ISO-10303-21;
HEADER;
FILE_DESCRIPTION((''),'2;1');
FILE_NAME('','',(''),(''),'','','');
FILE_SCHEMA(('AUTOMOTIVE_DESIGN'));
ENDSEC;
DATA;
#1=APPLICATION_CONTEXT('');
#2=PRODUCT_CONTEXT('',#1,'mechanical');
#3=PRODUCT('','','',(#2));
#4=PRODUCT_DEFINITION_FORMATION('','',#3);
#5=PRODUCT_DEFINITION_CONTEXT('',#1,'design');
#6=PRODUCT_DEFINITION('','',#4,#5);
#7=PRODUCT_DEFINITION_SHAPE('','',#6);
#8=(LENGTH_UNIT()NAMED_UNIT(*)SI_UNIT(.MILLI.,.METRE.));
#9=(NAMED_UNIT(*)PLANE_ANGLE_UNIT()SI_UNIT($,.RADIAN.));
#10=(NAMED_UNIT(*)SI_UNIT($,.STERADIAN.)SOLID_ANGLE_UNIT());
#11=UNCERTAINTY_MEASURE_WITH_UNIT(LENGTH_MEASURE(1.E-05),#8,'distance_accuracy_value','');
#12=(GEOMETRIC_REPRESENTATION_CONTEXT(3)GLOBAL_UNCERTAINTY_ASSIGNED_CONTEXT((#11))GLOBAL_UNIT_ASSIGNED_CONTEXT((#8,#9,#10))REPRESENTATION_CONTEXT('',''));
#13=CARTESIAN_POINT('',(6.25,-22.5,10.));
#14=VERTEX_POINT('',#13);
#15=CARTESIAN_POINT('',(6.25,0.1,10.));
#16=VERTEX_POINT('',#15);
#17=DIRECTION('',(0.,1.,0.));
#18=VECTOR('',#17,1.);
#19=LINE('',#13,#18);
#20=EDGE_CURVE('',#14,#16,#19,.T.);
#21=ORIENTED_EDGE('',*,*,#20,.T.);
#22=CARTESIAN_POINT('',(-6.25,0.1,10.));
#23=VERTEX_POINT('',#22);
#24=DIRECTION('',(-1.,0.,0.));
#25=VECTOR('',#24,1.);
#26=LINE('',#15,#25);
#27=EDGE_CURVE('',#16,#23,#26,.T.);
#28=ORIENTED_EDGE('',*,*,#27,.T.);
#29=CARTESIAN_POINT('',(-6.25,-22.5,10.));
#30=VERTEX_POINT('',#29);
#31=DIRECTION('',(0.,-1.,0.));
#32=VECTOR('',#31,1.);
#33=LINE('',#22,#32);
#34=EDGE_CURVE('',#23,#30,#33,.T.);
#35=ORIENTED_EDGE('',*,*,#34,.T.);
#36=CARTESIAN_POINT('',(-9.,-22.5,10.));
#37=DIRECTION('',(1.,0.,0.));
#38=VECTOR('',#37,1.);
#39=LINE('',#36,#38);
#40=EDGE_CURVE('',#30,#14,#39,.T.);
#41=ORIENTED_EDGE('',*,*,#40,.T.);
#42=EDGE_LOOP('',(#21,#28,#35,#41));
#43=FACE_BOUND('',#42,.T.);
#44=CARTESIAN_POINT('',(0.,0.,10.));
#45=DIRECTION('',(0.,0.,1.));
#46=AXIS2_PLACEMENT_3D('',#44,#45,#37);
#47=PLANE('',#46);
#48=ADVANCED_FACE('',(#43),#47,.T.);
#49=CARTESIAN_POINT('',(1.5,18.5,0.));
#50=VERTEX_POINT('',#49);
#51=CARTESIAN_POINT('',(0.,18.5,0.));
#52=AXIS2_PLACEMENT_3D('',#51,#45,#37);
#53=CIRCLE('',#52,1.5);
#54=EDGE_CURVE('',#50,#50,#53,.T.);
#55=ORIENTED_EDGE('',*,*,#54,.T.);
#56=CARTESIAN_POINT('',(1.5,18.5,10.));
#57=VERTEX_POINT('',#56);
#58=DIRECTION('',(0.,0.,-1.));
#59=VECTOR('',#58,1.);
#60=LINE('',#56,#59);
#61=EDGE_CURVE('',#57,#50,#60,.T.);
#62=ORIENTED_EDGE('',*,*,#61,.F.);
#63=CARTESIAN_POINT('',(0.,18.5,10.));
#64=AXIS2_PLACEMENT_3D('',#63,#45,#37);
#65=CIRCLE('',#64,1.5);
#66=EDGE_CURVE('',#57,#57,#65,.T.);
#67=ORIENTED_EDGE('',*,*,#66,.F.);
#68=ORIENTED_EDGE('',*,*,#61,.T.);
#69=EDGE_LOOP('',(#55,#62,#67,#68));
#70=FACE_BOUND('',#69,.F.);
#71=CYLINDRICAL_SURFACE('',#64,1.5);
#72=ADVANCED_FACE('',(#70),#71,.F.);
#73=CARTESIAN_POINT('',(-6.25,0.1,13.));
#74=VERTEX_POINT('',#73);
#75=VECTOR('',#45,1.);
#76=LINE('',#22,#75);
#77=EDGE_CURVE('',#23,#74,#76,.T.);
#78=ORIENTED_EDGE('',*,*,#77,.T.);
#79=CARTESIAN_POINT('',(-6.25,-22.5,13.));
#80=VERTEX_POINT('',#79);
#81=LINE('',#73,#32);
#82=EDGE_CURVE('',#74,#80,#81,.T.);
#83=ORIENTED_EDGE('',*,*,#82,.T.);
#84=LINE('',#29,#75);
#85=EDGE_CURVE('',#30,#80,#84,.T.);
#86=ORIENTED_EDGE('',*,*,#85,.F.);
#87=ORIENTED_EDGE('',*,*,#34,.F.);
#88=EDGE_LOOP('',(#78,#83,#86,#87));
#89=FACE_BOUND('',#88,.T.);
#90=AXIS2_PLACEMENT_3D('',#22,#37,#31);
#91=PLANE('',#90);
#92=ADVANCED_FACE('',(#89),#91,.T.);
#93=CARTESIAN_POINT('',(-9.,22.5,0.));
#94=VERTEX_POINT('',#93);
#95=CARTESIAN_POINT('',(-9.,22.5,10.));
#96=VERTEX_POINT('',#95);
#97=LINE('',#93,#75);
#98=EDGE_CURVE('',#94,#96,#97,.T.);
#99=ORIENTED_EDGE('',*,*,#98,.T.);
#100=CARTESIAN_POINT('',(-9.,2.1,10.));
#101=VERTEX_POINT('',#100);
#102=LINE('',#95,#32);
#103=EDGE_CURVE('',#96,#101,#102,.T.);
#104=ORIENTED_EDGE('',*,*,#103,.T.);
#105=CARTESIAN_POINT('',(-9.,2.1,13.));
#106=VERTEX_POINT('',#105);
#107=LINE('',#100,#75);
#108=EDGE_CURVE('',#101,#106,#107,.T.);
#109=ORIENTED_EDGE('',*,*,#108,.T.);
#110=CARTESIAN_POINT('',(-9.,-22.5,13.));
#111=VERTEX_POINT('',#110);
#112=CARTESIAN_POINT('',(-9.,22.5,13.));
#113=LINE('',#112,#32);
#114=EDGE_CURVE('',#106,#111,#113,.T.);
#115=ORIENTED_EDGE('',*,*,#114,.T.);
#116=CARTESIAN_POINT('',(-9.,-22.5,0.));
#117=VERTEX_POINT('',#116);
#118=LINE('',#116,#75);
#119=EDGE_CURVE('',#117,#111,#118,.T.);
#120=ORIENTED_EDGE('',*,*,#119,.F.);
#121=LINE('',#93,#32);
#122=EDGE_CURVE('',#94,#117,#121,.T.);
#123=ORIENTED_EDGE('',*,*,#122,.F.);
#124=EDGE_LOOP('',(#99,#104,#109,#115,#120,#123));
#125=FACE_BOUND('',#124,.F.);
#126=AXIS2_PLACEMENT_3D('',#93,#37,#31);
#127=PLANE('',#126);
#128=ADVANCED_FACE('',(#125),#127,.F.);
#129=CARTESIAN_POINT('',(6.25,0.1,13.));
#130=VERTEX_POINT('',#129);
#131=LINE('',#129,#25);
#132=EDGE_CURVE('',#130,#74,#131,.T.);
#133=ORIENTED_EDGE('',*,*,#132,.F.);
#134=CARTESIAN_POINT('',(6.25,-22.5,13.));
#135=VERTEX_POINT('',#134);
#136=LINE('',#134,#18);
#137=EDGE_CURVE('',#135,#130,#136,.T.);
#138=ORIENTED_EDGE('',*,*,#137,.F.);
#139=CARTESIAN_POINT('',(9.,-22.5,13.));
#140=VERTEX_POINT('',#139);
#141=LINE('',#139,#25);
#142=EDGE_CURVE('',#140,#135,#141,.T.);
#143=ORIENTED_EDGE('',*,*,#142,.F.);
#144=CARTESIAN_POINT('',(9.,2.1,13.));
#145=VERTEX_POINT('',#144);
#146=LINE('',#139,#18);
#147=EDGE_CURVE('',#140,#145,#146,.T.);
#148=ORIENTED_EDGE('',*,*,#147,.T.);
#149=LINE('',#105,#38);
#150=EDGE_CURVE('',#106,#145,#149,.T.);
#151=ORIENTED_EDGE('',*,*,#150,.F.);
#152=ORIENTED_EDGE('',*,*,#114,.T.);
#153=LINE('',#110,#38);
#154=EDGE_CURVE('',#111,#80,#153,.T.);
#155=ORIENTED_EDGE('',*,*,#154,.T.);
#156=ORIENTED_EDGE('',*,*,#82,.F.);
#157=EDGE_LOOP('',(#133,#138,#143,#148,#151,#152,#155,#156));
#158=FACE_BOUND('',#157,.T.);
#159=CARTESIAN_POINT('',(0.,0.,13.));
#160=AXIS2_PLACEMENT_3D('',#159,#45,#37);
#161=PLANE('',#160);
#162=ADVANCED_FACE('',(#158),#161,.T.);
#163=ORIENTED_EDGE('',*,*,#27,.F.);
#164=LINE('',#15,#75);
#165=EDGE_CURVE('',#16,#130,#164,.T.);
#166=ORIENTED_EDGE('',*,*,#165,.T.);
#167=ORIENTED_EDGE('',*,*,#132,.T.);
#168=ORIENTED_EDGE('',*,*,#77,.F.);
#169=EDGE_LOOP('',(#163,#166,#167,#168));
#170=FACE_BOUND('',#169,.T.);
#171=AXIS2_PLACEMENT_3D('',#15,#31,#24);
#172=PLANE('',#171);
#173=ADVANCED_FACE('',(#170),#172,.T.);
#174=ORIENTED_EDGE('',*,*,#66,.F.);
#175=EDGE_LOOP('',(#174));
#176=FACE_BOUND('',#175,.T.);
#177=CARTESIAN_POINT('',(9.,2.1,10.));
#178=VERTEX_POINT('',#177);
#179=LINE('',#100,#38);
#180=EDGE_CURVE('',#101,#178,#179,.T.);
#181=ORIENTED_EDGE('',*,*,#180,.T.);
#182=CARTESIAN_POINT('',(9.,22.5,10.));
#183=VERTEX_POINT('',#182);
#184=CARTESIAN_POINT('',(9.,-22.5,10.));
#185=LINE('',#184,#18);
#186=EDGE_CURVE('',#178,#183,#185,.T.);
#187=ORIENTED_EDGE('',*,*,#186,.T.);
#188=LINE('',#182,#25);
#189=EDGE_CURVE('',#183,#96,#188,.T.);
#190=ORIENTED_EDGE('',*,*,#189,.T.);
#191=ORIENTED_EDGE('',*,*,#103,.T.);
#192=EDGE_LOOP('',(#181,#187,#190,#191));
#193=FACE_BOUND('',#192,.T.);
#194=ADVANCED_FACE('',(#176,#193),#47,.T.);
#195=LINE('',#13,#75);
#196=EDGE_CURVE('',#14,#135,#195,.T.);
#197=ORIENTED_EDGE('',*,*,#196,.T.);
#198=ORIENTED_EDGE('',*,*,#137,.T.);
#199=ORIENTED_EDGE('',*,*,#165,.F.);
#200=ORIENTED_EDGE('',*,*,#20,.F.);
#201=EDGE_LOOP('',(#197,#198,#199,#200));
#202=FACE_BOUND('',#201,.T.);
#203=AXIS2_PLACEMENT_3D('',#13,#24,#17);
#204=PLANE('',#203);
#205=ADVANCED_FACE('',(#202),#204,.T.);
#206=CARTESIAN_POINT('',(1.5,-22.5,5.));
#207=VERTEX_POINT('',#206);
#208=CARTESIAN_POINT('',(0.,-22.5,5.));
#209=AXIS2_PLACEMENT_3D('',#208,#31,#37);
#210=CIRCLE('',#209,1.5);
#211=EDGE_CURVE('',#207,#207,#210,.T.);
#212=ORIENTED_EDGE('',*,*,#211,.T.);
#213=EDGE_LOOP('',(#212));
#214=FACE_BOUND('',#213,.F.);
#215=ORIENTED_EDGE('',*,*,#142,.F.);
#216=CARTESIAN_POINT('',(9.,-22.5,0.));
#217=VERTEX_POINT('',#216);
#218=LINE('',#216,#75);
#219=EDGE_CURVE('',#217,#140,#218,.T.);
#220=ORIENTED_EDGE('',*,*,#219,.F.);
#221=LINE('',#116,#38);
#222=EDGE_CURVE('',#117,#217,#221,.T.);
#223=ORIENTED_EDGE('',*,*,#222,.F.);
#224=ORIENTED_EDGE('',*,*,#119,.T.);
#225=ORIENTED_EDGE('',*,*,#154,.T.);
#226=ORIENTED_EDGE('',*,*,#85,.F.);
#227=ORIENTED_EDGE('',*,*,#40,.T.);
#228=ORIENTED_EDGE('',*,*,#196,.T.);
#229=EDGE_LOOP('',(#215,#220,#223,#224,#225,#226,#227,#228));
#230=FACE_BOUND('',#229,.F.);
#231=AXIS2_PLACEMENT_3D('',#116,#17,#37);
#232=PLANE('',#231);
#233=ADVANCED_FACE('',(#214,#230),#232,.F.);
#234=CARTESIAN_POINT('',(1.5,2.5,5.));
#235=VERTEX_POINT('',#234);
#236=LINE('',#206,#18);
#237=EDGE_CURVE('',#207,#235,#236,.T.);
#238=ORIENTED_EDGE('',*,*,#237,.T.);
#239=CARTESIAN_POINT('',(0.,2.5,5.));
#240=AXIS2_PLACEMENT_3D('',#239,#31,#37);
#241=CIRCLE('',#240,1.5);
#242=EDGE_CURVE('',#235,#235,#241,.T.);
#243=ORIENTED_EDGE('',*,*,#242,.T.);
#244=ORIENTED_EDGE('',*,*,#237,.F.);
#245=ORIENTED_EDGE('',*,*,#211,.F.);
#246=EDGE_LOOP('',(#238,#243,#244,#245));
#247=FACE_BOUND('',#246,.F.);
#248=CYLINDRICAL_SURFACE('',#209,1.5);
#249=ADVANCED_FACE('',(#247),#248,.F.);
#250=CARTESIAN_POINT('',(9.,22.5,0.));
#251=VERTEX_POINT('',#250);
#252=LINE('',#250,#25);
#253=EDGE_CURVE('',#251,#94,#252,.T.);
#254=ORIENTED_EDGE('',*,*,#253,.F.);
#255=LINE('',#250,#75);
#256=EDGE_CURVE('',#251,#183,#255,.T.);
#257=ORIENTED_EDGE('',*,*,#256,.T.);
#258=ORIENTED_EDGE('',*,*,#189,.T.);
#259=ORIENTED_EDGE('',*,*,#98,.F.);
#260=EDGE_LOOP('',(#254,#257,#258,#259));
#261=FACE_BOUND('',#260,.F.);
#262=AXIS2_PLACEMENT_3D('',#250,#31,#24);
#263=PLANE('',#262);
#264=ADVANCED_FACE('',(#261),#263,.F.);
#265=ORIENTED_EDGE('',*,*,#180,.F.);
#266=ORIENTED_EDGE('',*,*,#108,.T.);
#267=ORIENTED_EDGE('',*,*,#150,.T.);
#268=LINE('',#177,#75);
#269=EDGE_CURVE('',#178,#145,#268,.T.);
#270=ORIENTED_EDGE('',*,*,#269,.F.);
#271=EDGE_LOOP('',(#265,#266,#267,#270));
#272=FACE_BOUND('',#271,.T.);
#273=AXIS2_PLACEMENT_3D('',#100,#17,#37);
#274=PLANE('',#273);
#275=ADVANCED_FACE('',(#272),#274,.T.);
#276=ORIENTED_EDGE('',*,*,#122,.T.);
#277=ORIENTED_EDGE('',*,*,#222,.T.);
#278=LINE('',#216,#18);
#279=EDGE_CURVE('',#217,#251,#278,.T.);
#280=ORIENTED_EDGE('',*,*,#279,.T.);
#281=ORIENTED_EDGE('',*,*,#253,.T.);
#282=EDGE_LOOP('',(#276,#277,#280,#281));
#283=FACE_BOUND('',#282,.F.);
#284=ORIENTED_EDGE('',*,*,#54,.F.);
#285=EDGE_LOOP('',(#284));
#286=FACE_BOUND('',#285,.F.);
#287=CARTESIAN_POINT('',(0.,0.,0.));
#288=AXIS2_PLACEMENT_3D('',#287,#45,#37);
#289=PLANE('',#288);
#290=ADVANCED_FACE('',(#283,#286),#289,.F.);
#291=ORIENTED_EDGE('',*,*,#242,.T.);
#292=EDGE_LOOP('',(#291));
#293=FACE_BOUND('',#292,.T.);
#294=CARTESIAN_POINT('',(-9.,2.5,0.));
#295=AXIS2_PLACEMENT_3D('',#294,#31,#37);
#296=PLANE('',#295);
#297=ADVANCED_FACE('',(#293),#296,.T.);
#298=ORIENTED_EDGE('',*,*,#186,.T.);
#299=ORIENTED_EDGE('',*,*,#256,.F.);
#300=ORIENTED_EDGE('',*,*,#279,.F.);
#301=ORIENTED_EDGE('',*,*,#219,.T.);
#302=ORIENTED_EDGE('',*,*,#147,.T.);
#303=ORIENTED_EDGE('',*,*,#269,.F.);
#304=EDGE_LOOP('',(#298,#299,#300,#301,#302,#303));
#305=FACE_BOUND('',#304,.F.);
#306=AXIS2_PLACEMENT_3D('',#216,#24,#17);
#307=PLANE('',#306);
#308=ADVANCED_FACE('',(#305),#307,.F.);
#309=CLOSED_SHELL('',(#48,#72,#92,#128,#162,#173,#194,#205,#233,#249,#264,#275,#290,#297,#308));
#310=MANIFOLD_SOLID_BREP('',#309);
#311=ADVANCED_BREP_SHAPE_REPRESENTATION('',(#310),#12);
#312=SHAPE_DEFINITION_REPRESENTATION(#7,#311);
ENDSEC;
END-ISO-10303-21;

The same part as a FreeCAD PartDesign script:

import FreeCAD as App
import Part
import Sketcher

V = App.Vector


def add_polygon(sketch, points):
    """Adds a closed chain of lines whose ends are joined by coincident constraints."""
    first, n = sketch.GeometryCount, len(points)
    for a, b in zip(points, points[1:] + points[:1]):
        sketch.addGeometry(Part.LineSegment(App.Vector(*a, 0), App.Vector(*b, 0)), False)
    for i in range(n):
        sketch.addConstraint(Sketcher.Constraint("Coincident", first + i, 2, first + (i + 1) % n, 1))

doc = App.newDocument("Part")
body = doc.addObject("PartDesign::Body", "Body")

# Sketch on XY plane
sketch1 = doc.addObject("Sketcher::SketchObject", "Sketch")
body.addObject(sketch1)
sketch1.AttachmentSupport = (doc.XY_Plane, [""])
sketch1.MapMode = "FlatFace"
add_polygon(sketch1, [(-9, 22.5), (-9, -22.5), (9, -22.5), (9, 22.5)])  # lines 0-3
sketch1.addConstraint([
    Sketcher.Constraint("Vertical", 0),
    Sketcher.Constraint("Horizontal", 1),
    Sketcher.Constraint("Vertical", 2),
    Sketcher.Constraint("Horizontal", 3),
    Sketcher.Constraint("Symmetric", 0, 2, 2, 2, -1, 1),
    Sketcher.Constraint("DistanceX", 1, 1, 1, 2, 18.0),
    Sketcher.Constraint("DistanceY", 0, 2, 0, 1, 45.0),
])
pad1 = doc.addObject("PartDesign::Pad", "Pad")
body.addObject(pad1)
pad1.Profile = sketch1
pad1.Length = 10

# Sketch on XY plane
sketch2 = doc.addObject("Sketcher::SketchObject", "Sketch001")
body.addObject(sketch2)
sketch2.AttachmentSupport = (doc.XY_Plane, [""])
sketch2.MapMode = "FlatFace"
sketch2.AttachmentOffset = App.Placement(V(0, 0, 10), App.Rotation())
add_polygon(sketch2, [(9, 2.1), (-9, 2.1), (-9, -22.5), (-6.25, -22.5), (-6.25, 0.1), (6.25, 0.1), (6.25, -22.5), (9, -22.5)])  # lines 0-7
sketch2.addConstraint([
    Sketcher.Constraint("Horizontal", 0),
    Sketcher.Constraint("Vertical", 1),
    Sketcher.Constraint("Horizontal", 2),
    Sketcher.Constraint("Vertical", 3),
    Sketcher.Constraint("Horizontal", 4),
    Sketcher.Constraint("Vertical", 5),
    Sketcher.Constraint("Horizontal", 6),
    Sketcher.Constraint("Vertical", 7),
    Sketcher.Constraint("Symmetric", 2, 2, 5, 2, -2),
    Sketcher.Constraint("Equal", 2, 6),
    Sketcher.Constraint("DistanceX", 4, 1, 4, 2, 12.5),
    Sketcher.Constraint("DistanceY", 3, 1, 3, 2, 22.6),
    Sketcher.Constraint("DistanceY", 3, 2, 0, 2, 2.0),
    Sketcher.Constraint("DistanceX", 2, 1, 2, 2, 2.75),
    Sketcher.Constraint("DistanceY", -1, 1, 0, 2, 2.1),
])
pad2 = doc.addObject("PartDesign::Pad", "Pad001")
body.addObject(pad2)
pad2.Profile = sketch2
pad2.Length = 3

# Sketch on XY plane
sketch3 = doc.addObject("Sketcher::SketchObject", "Sketch002")
body.addObject(sketch3)
sketch3.AttachmentSupport = (doc.XY_Plane, [""])
sketch3.MapMode = "FlatFace"
sketch3.AttachmentOffset = App.Placement(V(0, 0, 10), App.Rotation())
sketch3.addGeometry(Part.Circle(V(0, 18.5, 0), V(0, 0, 1), 1.5), False)
sketch3.addConstraint([
    Sketcher.Constraint("PointOnObject", 0, 3, -2),
    Sketcher.Constraint("Diameter", 0, 3.0),
    Sketcher.Constraint("DistanceY", -1, 1, 0, 3, 18.5),
])
pocket1 = doc.addObject("PartDesign::Pocket", "Pocket")
body.addObject(pocket1)
pocket1.Profile = sketch3
pocket1.Type = "ThroughAll"

# Sketch on XZ plane
sketch4 = doc.addObject("Sketcher::SketchObject", "Sketch003")
body.addObject(sketch4)
sketch4.AttachmentSupport = (doc.XZ_Plane, [""])
sketch4.MapMode = "FlatFace"
sketch4.AttachmentOffset = App.Placement(V(0, 0, 22.5), App.Rotation())
sketch4.addGeometry(Part.Circle(V(0, 5, 0), V(0, 0, 1), 1.5), False)
sketch4.addConstraint([
    Sketcher.Constraint("PointOnObject", 0, 3, -2),
    Sketcher.Constraint("Diameter", 0, 3.0),
    Sketcher.Constraint("DistanceY", -1, 1, 0, 3, 5.0),
])
pocket2 = doc.addObject("PartDesign::Pocket", "Pocket001")
body.addObject(pocket2)
pocket2.Profile = sketch4
pocket2.Length = 25

doc.recompute()
